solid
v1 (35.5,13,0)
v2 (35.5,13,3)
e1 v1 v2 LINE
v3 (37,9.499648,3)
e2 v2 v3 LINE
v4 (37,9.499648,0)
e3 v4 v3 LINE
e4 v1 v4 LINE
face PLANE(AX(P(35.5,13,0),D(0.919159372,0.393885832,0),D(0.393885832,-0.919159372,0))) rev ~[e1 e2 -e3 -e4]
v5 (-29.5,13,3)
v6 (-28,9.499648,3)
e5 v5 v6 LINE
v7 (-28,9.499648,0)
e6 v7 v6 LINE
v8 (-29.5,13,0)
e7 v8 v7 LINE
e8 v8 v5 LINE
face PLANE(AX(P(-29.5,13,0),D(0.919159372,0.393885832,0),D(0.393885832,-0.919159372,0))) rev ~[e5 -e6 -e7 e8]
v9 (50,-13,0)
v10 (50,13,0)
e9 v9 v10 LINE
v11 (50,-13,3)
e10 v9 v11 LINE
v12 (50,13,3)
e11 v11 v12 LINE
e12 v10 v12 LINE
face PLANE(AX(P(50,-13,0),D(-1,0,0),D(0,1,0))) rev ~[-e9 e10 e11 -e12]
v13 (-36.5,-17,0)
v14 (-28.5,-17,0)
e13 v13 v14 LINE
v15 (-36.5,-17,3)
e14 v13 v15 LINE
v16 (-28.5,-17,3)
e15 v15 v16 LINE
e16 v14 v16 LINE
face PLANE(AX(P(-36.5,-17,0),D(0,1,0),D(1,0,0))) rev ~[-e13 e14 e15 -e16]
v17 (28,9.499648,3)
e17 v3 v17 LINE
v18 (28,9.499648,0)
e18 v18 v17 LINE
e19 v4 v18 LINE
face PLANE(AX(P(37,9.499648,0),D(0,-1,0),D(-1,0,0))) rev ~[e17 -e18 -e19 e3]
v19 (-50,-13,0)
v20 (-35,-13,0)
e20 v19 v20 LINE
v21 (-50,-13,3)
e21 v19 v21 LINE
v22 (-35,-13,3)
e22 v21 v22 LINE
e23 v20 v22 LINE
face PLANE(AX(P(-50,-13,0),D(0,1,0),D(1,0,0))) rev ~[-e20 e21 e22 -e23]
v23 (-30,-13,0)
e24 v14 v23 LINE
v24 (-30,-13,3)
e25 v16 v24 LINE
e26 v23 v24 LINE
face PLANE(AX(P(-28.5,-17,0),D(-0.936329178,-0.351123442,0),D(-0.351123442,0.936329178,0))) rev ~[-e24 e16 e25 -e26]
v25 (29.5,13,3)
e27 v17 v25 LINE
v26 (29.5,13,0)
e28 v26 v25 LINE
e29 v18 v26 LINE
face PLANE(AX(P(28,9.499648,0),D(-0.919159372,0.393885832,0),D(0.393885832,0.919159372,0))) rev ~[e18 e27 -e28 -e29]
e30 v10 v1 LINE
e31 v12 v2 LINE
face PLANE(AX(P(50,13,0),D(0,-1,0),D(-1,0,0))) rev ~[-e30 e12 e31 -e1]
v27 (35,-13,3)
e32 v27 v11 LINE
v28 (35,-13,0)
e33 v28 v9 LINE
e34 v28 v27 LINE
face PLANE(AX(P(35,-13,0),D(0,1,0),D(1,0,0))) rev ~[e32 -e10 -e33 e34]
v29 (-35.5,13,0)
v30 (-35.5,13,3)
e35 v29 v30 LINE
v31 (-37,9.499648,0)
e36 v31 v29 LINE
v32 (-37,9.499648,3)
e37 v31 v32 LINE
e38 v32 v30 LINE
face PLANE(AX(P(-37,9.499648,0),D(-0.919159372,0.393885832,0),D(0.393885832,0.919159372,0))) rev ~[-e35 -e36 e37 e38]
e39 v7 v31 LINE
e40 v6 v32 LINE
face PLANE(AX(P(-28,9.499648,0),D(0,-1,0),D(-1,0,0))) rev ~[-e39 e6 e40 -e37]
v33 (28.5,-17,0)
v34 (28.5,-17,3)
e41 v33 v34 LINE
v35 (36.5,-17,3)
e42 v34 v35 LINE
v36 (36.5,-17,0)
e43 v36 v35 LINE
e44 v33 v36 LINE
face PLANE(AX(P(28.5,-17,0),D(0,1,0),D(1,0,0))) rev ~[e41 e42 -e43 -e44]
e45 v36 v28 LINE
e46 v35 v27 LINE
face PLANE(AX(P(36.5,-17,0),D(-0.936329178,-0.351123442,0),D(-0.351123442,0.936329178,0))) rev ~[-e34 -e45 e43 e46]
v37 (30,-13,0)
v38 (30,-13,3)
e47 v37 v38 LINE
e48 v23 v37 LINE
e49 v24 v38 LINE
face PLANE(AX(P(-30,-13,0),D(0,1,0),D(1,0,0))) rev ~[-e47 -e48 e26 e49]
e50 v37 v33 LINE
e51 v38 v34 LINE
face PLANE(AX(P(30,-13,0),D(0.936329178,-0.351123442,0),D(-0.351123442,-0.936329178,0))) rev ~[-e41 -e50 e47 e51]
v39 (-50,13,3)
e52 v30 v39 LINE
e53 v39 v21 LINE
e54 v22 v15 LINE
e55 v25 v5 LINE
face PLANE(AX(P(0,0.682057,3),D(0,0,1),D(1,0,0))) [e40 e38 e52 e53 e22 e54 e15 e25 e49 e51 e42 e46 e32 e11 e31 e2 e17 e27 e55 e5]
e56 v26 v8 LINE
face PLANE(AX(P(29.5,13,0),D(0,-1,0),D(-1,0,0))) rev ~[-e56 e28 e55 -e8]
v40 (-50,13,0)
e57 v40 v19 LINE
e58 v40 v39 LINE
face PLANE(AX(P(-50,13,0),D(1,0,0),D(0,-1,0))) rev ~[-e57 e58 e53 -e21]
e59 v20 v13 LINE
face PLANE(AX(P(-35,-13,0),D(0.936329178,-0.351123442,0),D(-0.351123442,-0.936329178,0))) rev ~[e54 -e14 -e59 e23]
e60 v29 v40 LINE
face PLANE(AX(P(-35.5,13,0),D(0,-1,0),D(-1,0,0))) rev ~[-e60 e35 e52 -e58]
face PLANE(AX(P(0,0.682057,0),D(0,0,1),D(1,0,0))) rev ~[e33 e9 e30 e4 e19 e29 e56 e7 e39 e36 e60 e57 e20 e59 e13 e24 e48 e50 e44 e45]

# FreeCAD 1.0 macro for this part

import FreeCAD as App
import Part
import Sketcher
Q = App.Units.Quantity

doc = App.newDocument("Part")
body = doc.addObject("PartDesign::Body", "Body")

sketch1 = body.newObject("Sketcher::SketchObject", "Sketch")
sketch1.AttachmentSupport = (doc.getObject("XY_Plane"), [""])
sketch1.MapMode = "FlatFace"
sketch1.addGeometry(Part.LineSegment(App.Vector(50, -13, 0), App.Vector(50, 13, 0)), False)
sketch1.addGeometry(Part.LineSegment(App.Vector(50, 13, 0), App.Vector(35.5, 13, 0)), False)
sketch1.addGeometry(Part.LineSegment(App.Vector(35.5, 13, 0), App.Vector(37, 9.5, 0)), False)
sketch1.addGeometry(Part.LineSegment(App.Vector(37, 9.5, 0), App.Vector(28, 9.5, 0)), False)
sketch1.addGeometry(Part.LineSegment(App.Vector(28, 9.5, 0), App.Vector(29.5, 13, 0)), False)
sketch1.addGeometry(Part.LineSegment(App.Vector(29.5, 13, 0), App.Vector(-29.5, 13, 0)), False)
sketch1.addGeometry(Part.LineSegment(App.Vector(-29.5, 13, 0), App.Vector(-28, 9.5, 0)), False)
sketch1.addGeometry(Part.LineSegment(App.Vector(-28, 9.5, 0), App.Vector(-37, 9.5, 0)), False)
sketch1.addGeometry(Part.LineSegment(App.Vector(-37, 9.5, 0), App.Vector(-35.5, 13, 0)), False)
sketch1.addGeometry(Part.LineSegment(App.Vector(-35.5, 13, 0), App.Vector(-50, 13, 0)), False)
sketch1.addGeometry(Part.LineSegment(App.Vector(-50, 13, 0), App.Vector(-50, -13, 0)), False)
sketch1.addGeometry(Part.LineSegment(App.Vector(-50, -13, 0), App.Vector(-35, -13, 0)), False)
sketch1.addGeometry(Part.LineSegment(App.Vector(-35, -13, 0), App.Vector(-36.5, -17, 0)), False)
sketch1.addGeometry(Part.LineSegment(App.Vector(-36.5, -17, 0), App.Vector(-28.5, -17, 0)), False)
sketch1.addGeometry(Part.LineSegment(App.Vector(-28.5, -17, 0), App.Vector(-30, -13, 0)), False)
sketch1.addGeometry(Part.LineSegment(App.Vector(-30, -13, 0), App.Vector(30, -13, 0)), False)
sketch1.addGeometry(Part.LineSegment(App.Vector(30, -13, 0), App.Vector(28.5, -17, 0)), False)
sketch1.addGeometry(Part.LineSegment(App.Vector(28.5, -17, 0), App.Vector(36.5, -17, 0)), False)
sketch1.addGeometry(Part.LineSegment(App.Vector(36.5, -17, 0), App.Vector(35, -13, 0)), False)
sketch1.addGeometry(Part.LineSegment(App.Vector(35, -13, 0), App.Vector(50, -13, 0)), False)
sketch1.addConstraint(Sketcher.Constraint("Coincident", 0, 2, 1, 1))
sketch1.addConstraint(Sketcher.Constraint("Coincident", 1, 2, 2, 1))
sketch1.addConstraint(Sketcher.Constraint("Coincident", 2, 2, 3, 1))
sketch1.addConstraint(Sketcher.Constraint("Coincident", 3, 2, 4, 1))
sketch1.addConstraint(Sketcher.Constraint("Coincident", 4, 2, 5, 1))
sketch1.addConstraint(Sketcher.Constraint("Coincident", 5, 2, 6, 1))
sketch1.addConstraint(Sketcher.Constraint("Coincident", 6, 2, 7, 1))
sketch1.addConstraint(Sketcher.Constraint("Coincident", 7, 2, 8, 1))
sketch1.addConstraint(Sketcher.Constraint("Coincident", 8, 2, 9, 1))
sketch1.addConstraint(Sketcher.Constraint("Coincident", 9, 2, 10, 1))
sketch1.addConstraint(Sketcher.Constraint("Coincident", 10, 2, 11, 1))
sketch1.addConstraint(Sketcher.Constraint("Coincident", 11, 2, 12, 1))
sketch1.addConstraint(Sketcher.Constraint("Coincident", 12, 2, 13, 1))
sketch1.addConstraint(Sketcher.Constraint("Coincident", 13, 2, 14, 1))
sketch1.addConstraint(Sketcher.Constraint("Coincident", 14, 2, 15, 1))
sketch1.addConstraint(Sketcher.Constraint("Coincident", 15, 2, 16, 1))
sketch1.addConstraint(Sketcher.Constraint("Coincident", 16, 2, 17, 1))
sketch1.addConstraint(Sketcher.Constraint("Coincident", 17, 2, 18, 1))
sketch1.addConstraint(Sketcher.Constraint("Coincident", 18, 2, 19, 1))
sketch1.addConstraint(Sketcher.Constraint("Coincident", 19, 2, 0, 1))
sketch1.addConstraint(Sketcher.Constraint("Vertical", 0))
sketch1.addConstraint(Sketcher.Constraint("Horizontal", 1))
sketch1.addConstraint(Sketcher.Constraint("Horizontal", 3))
sketch1.addConstraint(Sketcher.Constraint("Horizontal", 5))
sketch1.addConstraint(Sketcher.Constraint("Horizontal", 7))
sketch1.addConstraint(Sketcher.Constraint("Horizontal", 9))
sketch1.addConstraint(Sketcher.Constraint("Vertical", 10))
sketch1.addConstraint(Sketcher.Constraint("Horizontal", 11))
sketch1.addConstraint(Sketcher.Constraint("Horizontal", 13))
sketch1.addConstraint(Sketcher.Constraint("Horizontal", 15))
sketch1.addConstraint(Sketcher.Constraint("Horizontal", 17))
sketch1.addConstraint(Sketcher.Constraint("Horizontal", 19))
sketch1.addConstraint(Sketcher.Constraint("Symmetric", 0, 2, 10, 2, -1, 1))
sketch1.addConstraint(Sketcher.Constraint("Symmetric", 3, 2, 6, 2, -2))
sketch1.addConstraint(Sketcher.Constraint("Symmetric", 1, 2, 8, 2, -2))
sketch1.addConstraint(Sketcher.Constraint("Symmetric", 13, 2, 16, 2, -2))
sketch1.addConstraint(Sketcher.Constraint("Symmetric", 11, 2, 18, 2, -2))
sketch1.addConstraint(Sketcher.Constraint("Parallel", 2, 6))
sketch1.addConstraint(Sketcher.Constraint("Parallel", 4, 8))
sketch1.addConstraint(Sketcher.Constraint("Parallel", 12, 16))
sketch1.addConstraint(Sketcher.Constraint("Parallel", 14, 18))
sketch1.addConstraint(Sketcher.Constraint("Horizontal", 1, 2, 4, 2))
sketch1.addConstraint(Sketcher.Constraint("Horizontal", 11, 2, 14, 2))
sketch1.addConstraint(Sketcher.Constraint("Equal", 3, 7))
sketch1.addConstraint(Sketcher.Constraint("Equal", 13, 17))
sketch1.addConstraint(Sketcher.Constraint("DistanceX", 3, 2, 3, 1, Q("9 mm")))
sketch1.addConstraint(Sketcher.Constraint("DistanceX", 5, 2, 5, 1, Q("59 mm")))
sketch1.addConstraint(Sketcher.Constraint("DistanceX", 11, 1, 11, 2, Q("15 mm")))
sketch1.addConstraint(Sketcher.Constraint("DistanceX", 13, 1, 13, 2, Q("8 mm")))
sketch1.addConstraint(Sketcher.Constraint("DistanceX", 15, 1, 15, 2, Q("60 mm")))
sketch1.addConstraint(Sketcher.Constraint("DistanceY", 0, 1, 0, 2, Q("26 mm")))
sketch1.addConstraint(Sketcher.Constraint("DistanceX", 1, 2, 1, 1, Q("14.5 mm")))
sketch1.addConstraint(Sketcher.Constraint("DistanceX", -1, 1, 0, 2, Q("50 mm")))
sketch1.addConstraint(Sketcher.Constraint("DistanceY", 12, 2, -1, 1, Q("17 mm")))
sketch1.addConstraint(Sketcher.Constraint("Distance", 2, Q("3.80821 mm")))
pad1 = body.newObject("PartDesign::Pad", "Pad")
pad1.Profile = sketch1
pad1.Length = 3

doc.recompute()
